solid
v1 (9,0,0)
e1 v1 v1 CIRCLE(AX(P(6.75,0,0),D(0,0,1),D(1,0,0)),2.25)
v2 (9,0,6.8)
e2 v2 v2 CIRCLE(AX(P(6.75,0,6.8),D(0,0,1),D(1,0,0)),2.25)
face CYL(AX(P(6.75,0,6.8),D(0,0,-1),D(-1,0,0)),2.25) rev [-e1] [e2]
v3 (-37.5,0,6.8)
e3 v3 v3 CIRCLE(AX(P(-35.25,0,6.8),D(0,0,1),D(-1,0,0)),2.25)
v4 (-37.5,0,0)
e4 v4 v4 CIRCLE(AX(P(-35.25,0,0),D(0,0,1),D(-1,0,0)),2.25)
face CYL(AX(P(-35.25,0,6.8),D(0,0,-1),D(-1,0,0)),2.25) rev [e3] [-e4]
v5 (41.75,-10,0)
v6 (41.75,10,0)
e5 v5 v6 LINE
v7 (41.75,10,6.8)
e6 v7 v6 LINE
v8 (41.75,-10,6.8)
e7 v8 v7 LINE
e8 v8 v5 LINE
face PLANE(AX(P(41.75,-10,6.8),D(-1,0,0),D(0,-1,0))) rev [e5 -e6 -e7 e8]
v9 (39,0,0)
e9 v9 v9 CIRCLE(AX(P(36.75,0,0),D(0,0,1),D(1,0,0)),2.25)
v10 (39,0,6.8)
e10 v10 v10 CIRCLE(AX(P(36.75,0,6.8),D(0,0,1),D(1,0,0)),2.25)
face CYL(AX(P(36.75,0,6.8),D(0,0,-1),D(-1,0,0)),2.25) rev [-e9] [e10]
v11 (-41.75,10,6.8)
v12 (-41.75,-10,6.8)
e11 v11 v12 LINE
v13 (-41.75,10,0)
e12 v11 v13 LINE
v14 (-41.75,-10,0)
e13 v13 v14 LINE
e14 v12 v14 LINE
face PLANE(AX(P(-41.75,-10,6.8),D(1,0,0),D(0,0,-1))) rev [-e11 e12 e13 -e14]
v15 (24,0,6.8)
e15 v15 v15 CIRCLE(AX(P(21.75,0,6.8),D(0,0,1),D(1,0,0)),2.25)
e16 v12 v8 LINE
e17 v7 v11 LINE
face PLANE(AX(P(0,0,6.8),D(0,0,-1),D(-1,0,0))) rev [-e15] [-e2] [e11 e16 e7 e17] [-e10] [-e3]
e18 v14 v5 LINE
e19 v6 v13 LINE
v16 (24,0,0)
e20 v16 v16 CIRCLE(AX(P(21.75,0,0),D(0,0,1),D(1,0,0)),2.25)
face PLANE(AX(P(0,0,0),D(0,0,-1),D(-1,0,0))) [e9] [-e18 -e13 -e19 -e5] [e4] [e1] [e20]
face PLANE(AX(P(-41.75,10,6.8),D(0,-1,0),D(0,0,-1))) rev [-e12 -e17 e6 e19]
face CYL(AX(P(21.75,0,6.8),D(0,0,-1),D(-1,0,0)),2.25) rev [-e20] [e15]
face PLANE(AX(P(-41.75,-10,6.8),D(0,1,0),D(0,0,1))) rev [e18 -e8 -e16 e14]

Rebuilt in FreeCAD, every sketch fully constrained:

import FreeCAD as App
import Part
import Sketcher
from FreeCAD import Vector
Q = App.Units.Quantity

doc = App.newDocument("Part")
body = doc.addObject("PartDesign::Body", "Body")

sketch1 = body.newObject("Sketcher::SketchObject", "Sketch")
sketch1.AttachmentSupport = (doc.getObject("XY_Plane"), [""])
sketch1.MapMode = "FlatFace"
sketch1.addGeometry([
    Part.LineSegment(Vector(-41.8, 10, 0), Vector(-41.8, -10, 0)),
    Part.LineSegment(Vector(-41.8, -10, 0), Vector(41.8, -10, 0)),
    Part.LineSegment(Vector(41.8, -10, 0), Vector(41.8, 10, 0)),
    Part.LineSegment(Vector(41.8, 10, 0), Vector(-41.8, 10, 0)),
    Part.Circle(Vector(-35.2, 0, 0), Vector(0, 0, 1), 2.2),
    Part.Circle(Vector(6.8, 0, 0), Vector(0, 0, 1), 2.2),
    Part.Circle(Vector(21.8, 0, 0), Vector(0, 0, 1), 2.2),
    Part.Circle(Vector(36.8, 0, 0), Vector(0, 0, 1), 2.2),
], False)
sketch1.addConstraint([
    Sketcher.Constraint("Coincident", 0, 2, 1, 1),
    Sketcher.Constraint("Coincident", 1, 2, 2, 1),
    Sketcher.Constraint("Coincident", 2, 2, 3, 1),
    Sketcher.Constraint("Coincident", 3, 2, 0, 1),
    Sketcher.Constraint("Vertical", 0),
    Sketcher.Constraint("Horizontal", 1),
    Sketcher.Constraint("Vertical", 2),
    Sketcher.Constraint("Horizontal", 3),
    Sketcher.Constraint("Equal", 4, 5),
    Sketcher.Constraint("Equal", 5, 6),
    Sketcher.Constraint("Equal", 6, 7),
    Sketcher.Constraint("Symmetric", 0, 2, 2, 2, -1, 1),
    Sketcher.Constraint("PointOnObject", 4, 3, -1),
    Sketcher.Constraint("PointOnObject", 5, 3, -1),
    Sketcher.Constraint("PointOnObject", 6, 3, -1),
    Sketcher.Constraint("PointOnObject", 7, 3, -1),
    Sketcher.Constraint("Diameter", 4, Q("4.5 mm")),
    Sketcher.Constraint("DistanceY", 0, 2, 0, 1, Q("20 mm")),
    Sketcher.Constraint("DistanceX", 1, 1, 1, 2, Q("83.5 mm")),
    Sketcher.Constraint("DistanceX", 4, 3, 5, 3, Q("42 mm")),
    Sketcher.Constraint("DistanceX", 5, 3, 6, 3, Q("15 mm")),
    Sketcher.Constraint("DistanceX", 6, 3, 7, 3, Q("15 mm")),
    Sketcher.Constraint("DistanceX", 7, 3, 1, 2, Q("5 mm")),
])
pad1 = body.newObject("PartDesign::Pad", "Pad")
pad1.Profile = sketch1
pad1.Length = 6.8

doc.recompute()
